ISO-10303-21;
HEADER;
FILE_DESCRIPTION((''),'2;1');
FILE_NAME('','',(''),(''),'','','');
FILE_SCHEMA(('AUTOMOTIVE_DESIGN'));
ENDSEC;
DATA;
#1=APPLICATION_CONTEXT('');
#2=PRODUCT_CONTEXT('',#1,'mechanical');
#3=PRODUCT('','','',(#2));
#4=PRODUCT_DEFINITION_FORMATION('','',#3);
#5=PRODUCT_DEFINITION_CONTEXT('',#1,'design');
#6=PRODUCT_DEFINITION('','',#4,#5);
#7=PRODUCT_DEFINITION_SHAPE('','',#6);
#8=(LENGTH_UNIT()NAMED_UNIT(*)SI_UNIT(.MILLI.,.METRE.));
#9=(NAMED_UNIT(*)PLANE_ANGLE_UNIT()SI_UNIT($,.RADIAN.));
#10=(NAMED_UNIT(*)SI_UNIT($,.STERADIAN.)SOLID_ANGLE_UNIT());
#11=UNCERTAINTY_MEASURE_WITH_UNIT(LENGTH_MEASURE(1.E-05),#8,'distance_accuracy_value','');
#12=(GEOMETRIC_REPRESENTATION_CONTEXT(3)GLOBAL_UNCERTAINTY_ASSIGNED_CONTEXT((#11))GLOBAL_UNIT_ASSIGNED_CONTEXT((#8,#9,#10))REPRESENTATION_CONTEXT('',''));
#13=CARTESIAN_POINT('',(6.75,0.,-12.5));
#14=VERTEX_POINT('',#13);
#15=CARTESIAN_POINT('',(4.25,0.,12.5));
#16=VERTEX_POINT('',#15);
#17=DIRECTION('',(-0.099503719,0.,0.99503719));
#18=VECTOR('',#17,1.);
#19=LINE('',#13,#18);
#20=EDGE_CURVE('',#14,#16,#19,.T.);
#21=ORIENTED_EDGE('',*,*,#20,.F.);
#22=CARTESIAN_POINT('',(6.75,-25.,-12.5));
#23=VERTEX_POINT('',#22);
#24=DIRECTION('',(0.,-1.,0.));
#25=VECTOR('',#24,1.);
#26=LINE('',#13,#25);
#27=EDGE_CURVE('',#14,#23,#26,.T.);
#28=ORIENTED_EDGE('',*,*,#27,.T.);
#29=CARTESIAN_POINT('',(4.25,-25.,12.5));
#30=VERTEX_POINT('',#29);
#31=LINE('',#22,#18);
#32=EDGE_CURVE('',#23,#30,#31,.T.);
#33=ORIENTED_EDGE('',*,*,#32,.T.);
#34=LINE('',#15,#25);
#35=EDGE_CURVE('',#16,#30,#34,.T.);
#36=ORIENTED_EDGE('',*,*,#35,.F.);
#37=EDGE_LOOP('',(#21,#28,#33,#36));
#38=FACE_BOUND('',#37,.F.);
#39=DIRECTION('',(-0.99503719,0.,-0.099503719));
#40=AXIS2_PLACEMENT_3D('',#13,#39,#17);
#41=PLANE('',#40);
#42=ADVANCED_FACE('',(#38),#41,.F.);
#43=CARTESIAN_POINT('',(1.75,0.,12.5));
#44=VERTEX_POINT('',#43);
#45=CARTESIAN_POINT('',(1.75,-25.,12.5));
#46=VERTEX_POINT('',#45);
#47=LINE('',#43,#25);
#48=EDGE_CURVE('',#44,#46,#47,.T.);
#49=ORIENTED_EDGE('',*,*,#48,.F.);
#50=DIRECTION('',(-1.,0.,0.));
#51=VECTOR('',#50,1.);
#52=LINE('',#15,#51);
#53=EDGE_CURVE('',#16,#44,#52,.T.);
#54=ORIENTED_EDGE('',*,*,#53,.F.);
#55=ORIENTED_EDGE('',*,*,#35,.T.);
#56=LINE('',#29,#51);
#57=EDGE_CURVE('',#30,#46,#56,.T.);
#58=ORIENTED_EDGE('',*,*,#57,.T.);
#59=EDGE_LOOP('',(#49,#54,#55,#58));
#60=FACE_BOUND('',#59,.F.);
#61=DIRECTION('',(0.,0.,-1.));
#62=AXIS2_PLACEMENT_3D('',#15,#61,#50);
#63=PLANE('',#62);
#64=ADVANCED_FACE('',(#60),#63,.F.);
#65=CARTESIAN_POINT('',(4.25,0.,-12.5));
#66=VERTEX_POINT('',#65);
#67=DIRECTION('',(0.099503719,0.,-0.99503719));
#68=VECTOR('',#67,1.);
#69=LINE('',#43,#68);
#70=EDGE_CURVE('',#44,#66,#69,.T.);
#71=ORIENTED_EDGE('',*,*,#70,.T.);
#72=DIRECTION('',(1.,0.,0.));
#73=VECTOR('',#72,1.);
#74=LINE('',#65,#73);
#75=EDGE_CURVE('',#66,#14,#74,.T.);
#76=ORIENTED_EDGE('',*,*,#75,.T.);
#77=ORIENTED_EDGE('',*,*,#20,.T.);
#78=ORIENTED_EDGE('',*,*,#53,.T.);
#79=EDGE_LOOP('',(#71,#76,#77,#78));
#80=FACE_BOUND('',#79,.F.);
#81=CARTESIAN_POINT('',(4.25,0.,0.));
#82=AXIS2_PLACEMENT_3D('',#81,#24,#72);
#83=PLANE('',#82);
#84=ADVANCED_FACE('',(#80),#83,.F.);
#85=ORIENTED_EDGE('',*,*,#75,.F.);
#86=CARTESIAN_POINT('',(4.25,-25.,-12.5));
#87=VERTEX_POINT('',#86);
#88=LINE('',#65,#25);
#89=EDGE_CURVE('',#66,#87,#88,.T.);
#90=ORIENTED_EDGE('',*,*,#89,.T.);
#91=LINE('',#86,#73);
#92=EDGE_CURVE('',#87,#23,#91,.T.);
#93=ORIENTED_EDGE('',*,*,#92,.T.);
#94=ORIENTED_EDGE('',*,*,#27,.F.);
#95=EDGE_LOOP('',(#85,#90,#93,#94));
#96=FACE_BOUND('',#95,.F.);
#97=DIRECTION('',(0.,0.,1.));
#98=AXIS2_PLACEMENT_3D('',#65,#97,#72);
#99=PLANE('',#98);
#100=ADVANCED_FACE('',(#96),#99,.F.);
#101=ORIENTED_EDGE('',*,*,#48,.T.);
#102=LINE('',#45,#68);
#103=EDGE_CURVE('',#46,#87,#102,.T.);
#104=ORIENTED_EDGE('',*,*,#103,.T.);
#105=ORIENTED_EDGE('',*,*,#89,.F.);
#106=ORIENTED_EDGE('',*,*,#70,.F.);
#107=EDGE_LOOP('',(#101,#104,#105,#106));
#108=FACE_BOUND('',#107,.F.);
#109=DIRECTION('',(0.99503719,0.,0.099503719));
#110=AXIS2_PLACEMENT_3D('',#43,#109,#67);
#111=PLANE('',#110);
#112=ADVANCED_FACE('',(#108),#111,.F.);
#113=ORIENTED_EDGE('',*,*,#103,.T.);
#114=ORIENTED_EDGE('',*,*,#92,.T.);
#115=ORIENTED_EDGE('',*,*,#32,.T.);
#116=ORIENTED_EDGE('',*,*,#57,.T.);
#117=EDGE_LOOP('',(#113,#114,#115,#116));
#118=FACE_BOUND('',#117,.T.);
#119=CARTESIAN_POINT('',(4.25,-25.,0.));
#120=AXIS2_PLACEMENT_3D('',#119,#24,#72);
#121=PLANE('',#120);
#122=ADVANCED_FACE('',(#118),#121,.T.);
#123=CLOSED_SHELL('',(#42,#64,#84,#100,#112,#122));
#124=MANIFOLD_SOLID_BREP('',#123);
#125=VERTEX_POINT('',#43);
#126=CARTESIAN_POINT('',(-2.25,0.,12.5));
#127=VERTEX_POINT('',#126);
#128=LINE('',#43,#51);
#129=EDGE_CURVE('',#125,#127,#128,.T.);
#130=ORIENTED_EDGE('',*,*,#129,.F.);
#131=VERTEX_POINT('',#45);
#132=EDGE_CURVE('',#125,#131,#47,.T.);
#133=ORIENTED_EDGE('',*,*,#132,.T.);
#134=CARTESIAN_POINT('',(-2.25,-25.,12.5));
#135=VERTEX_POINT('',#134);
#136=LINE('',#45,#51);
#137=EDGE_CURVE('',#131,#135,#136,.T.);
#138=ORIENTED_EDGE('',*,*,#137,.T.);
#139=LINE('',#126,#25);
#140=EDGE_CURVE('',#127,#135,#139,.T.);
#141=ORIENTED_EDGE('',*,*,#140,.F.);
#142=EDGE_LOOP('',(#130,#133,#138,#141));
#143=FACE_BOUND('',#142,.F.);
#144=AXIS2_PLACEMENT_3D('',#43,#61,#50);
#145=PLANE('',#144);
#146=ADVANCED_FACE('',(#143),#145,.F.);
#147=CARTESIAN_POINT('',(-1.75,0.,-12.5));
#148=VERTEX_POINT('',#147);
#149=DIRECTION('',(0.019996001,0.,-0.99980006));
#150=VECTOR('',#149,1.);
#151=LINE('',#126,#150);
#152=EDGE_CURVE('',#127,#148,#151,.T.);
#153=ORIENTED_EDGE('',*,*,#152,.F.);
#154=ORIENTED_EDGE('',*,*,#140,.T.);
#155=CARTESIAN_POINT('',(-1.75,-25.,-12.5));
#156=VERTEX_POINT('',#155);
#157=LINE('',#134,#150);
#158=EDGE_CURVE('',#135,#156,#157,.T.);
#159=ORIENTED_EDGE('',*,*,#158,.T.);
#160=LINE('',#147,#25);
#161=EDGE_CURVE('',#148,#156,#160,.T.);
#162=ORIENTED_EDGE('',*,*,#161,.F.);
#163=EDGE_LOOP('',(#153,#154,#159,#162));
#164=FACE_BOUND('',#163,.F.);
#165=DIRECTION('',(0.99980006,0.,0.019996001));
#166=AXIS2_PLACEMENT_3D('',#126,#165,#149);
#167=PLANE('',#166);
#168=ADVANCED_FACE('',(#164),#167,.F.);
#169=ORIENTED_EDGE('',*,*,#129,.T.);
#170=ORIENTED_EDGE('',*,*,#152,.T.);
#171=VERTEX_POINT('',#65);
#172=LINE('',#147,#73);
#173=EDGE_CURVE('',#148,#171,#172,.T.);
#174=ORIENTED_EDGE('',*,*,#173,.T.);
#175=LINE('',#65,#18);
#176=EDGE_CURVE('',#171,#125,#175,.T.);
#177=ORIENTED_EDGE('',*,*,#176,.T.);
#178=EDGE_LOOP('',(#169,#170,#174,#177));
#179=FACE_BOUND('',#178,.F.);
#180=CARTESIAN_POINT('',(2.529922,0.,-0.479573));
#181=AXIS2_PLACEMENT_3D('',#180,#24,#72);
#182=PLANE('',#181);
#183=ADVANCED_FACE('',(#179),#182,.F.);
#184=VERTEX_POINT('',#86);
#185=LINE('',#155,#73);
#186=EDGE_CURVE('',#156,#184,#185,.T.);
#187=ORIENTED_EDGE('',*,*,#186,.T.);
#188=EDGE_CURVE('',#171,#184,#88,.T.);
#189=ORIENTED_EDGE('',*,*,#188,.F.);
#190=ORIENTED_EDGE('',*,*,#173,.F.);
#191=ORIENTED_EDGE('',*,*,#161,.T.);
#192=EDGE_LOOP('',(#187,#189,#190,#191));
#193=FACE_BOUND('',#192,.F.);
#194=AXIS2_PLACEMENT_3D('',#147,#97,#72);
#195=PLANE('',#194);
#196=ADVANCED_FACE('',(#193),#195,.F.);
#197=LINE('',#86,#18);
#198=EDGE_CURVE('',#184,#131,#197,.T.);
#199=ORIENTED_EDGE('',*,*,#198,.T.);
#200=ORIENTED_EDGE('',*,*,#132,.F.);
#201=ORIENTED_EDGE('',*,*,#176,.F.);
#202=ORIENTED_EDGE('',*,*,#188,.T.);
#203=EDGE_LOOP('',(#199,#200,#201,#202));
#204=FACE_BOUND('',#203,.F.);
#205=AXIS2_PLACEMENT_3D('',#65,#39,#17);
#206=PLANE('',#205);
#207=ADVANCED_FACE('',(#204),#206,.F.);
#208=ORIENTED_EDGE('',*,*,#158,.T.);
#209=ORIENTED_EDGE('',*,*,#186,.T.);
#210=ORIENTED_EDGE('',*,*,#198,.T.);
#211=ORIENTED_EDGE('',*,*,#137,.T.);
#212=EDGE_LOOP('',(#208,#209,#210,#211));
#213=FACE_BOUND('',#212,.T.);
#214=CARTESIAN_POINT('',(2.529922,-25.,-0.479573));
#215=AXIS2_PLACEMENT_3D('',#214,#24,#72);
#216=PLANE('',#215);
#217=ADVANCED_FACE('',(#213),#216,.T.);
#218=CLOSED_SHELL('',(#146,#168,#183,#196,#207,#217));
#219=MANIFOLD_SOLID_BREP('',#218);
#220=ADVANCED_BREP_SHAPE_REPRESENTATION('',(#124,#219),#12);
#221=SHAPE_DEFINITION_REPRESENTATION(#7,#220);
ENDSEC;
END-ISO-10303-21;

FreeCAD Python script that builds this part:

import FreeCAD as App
import Part
import Sketcher

V = App.Vector
Q = App.Units.Quantity


def add_polygon(sketch, points):
    """Adds a closed chain of lines whose ends are joined by coincident constraints."""
    first, n = sketch.GeometryCount, len(points)
    for a, b in zip(points, points[1:] + points[:1]):
        sketch.addGeometry(Part.LineSegment(App.Vector(*a, 0), App.Vector(*b, 0)), False)
    for i in range(n):
        sketch.addConstraint(Sketcher.Constraint("Coincident", first + i, 2, first + (i + 1) % n, 1))

doc = App.newDocument("Part")
body = doc.addObject("PartDesign::Body", "Body")

# Sketch on XZ plane
sketch1 = body.newObject("Sketcher::SketchObject", "Sketch")
sketch1.AttachmentSupport = (doc.getObject("XZ_Plane"), [""])
sketch1.MapMode = "FlatFace"
add_polygon(sketch1, [(4.2, -12.5), (1.8, 12.5), (-2.2, 12.5), (-1.8, -12.5)])  # lines 0-3
sketch1.addConstraint(Sketcher.Constraint("Horizontal", 1))
sketch1.addConstraint(Sketcher.Constraint("Horizontal", 3))
sketch1.addConstraint(Sketcher.Constraint("Symmetric", 0, 2, 2, 2, -1, 1))
sketch1.addConstraint(Sketcher.Constraint("DistanceX", 1, 2, 1, 1, Q("4 mm")))
sketch1.addConstraint(Sketcher.Constraint("DistanceX", 3, 1, 3, 2, Q("6 mm")))
sketch1.addConstraint(Sketcher.Constraint("DistanceY", 2, 2, 1, 2, Q("25 mm")))
sketch1.addConstraint(Sketcher.Constraint("DistanceX", 1, 2, 2, 2, Q("0.5 mm")))
pad1 = body.newObject("PartDesign::Pad", "Pad")
pad1.Profile = sketch1
pad1.Length = 25
body2 = doc.addObject("PartDesign::Body", "Body001")

# Sketch on XZ plane
sketch2 = body2.newObject("Sketcher::SketchObject", "Sketch001")
sketch2.AttachmentSupport = (doc.getObject("XZ_Plane001"), [""])
sketch2.MapMode = "FlatFace"
add_polygon(sketch2, [(4.2, 12.5), (1.8, 12.5), (4.2, -12.5), (6.8, -12.5)])  # lines 0-3
sketch2.addConstraint(Sketcher.Constraint("Horizontal", 0))
sketch2.addConstraint(Sketcher.Constraint("Horizontal", 2))
sketch2.addConstraint(Sketcher.Constraint("Symmetric", 1, 2, 3, 2, -1))
sketch2.addConstraint(Sketcher.Constraint("Parallel", 1, 3))
sketch2.addConstraint(Sketcher.Constraint("DistanceX", 0, 2, 0, 1, Q("2.5 mm")))
sketch2.addConstraint(Sketcher.Constraint("DistanceY", 1, 2, 0, 2, Q("25 mm")))
sketch2.addConstraint(Sketcher.Constraint("DistanceX", -1, 1, 0, 2, Q("1.75 mm")))
pad2 = body2.newObject("PartDesign::Pad", "Pad001")
pad2.Profile = sketch2
pad2.Length = 25

doc.recompute()
